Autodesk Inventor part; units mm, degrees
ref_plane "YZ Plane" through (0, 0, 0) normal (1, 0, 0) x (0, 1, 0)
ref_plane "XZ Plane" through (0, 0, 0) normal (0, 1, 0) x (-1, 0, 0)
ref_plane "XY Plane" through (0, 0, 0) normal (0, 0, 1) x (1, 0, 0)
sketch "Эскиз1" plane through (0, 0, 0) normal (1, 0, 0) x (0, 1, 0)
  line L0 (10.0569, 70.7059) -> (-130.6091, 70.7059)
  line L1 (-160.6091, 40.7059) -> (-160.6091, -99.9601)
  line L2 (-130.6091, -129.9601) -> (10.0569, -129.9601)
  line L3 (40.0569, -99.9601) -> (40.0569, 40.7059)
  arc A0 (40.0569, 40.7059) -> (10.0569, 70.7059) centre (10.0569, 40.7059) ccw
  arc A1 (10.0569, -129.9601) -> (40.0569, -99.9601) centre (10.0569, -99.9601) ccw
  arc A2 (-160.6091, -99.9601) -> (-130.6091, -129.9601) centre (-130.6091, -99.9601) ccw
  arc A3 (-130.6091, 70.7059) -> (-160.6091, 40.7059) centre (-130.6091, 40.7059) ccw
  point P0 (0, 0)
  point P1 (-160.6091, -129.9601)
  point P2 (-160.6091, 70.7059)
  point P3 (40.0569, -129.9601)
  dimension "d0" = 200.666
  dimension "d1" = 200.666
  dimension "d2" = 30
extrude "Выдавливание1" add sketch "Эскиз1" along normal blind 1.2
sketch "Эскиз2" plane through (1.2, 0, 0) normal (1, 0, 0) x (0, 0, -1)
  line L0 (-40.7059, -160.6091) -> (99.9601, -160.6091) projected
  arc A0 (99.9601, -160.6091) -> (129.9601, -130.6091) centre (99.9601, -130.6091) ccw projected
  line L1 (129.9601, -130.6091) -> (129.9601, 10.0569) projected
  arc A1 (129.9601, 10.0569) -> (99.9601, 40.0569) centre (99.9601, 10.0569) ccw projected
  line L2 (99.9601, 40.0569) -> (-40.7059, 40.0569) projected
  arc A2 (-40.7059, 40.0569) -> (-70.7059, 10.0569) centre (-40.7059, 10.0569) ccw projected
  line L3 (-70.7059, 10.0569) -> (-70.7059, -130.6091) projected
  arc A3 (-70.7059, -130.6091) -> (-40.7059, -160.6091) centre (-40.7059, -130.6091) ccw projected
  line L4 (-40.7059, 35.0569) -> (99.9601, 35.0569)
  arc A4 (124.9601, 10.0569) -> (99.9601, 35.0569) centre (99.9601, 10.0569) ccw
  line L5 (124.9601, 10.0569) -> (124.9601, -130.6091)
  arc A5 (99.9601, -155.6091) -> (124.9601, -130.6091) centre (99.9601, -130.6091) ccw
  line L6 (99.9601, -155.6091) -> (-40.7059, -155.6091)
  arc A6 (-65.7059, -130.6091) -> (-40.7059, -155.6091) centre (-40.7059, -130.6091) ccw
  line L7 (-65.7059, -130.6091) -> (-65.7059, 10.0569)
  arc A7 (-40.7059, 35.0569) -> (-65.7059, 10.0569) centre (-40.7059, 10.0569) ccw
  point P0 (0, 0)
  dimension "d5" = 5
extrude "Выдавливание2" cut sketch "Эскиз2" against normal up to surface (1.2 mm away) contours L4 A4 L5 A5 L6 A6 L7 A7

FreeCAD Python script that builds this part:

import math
import FreeCAD as App
import Part
import Sketcher

V = App.Vector

doc = App.newDocument("Part")
body = doc.addObject("PartDesign::Body", "Body")

sketch1 = body.newObject("Sketcher::SketchObject", "Sketch")
sketch1.AttachmentSupport = (doc.getObject("YZ_Plane"), [""])
sketch1.MapMode = "FlatFace"
sketch1.addGeometry(Part.ArcOfCircle(Part.Circle(V(10, 41, 0), V(0, 0, 1), 30), math.radians(0), math.radians(90)), False)
sketch1.addGeometry(Part.LineSegment(V(10, 71, 0), V(-131, 71, 0)), False)
sketch1.addGeometry(Part.ArcOfCircle(Part.Circle(V(-131, 41, 0), V(0, 0, 1), 30), math.radians(90), math.radians(180)), False)
sketch1.addGeometry(Part.LineSegment(V(-161, 41, 0), V(-161, -100, 0)), False)
sketch1.addGeometry(Part.ArcOfCircle(Part.Circle(V(-131, -100, 0), V(0, 0, 1), 30), math.radians(180), math.radians(270)), False)
sketch1.addGeometry(Part.LineSegment(V(-131, -130, 0), V(10, -130, 0)), False)
sketch1.addGeometry(Part.ArcOfCircle(Part.Circle(V(10, -100, 0), V(0, 0, 1), 30), math.radians(-90), math.radians(0)), False)
sketch1.addGeometry(Part.LineSegment(V(40, -100, 0), V(40, 41, 0)), False)
sketch1.addConstraint(Sketcher.Constraint("Tangent", 0, 2, 1, 1))
sketch1.addConstraint(Sketcher.Constraint("Tangent", 1, 2, 2, 1))
sketch1.addConstraint(Sketcher.Constraint("Tangent", 2, 2, 3, 1))
sketch1.addConstraint(Sketcher.Constraint("Tangent", 3, 2, 4, 1))
sketch1.addConstraint(Sketcher.Constraint("Tangent", 4, 2, 5, 1))
sketch1.addConstraint(Sketcher.Constraint("Tangent", 5, 2, 6, 1))
sketch1.addConstraint(Sketcher.Constraint("Tangent", 6, 2, 7, 1))
sketch1.addConstraint(Sketcher.Constraint("Tangent", 7, 2, 0, 1))
sketch1.addConstraint(Sketcher.Constraint("Horizontal", 1))
sketch1.addConstraint(Sketcher.Constraint("Vertical", 3))
sketch1.addConstraint(Sketcher.Constraint("Horizontal", 5))
sketch1.addConstraint(Sketcher.Constraint("Vertical", 7))
sketch1.addConstraint(Sketcher.Constraint("Equal", 0, 2))
sketch1.addConstraint(Sketcher.Constraint("Equal", 2, 4))
sketch1.addConstraint(Sketcher.Constraint("Equal", 4, 6))
sketch1.addConstraint(Sketcher.Constraint("Equal", 5, 3))
sketch1.addConstraint(Sketcher.Constraint("Radius", 0, 30.0))
sketch1.addConstraint(Sketcher.Constraint("DistanceX", 1, 2, 1, 1, 140.666))
sketch1.addConstraint(Sketcher.Constraint("DistanceY", 4, 3, -1, 1, 99.96))
sketch1.addConstraint(Sketcher.Constraint("DistanceX", -1, 1, 0, 3, 10.057))
pad1 = body.newObject("PartDesign::Pad", "Pad")
pad1.Profile = sketch1
pad1.Length = 1.2

sketch2 = body.newObject("Sketcher::SketchObject", "Sketch001")
sketch2.AttachmentSupport = (doc.getObject("YZ_Plane"), [""])
sketch2.MapMode = "FlatFace"
sketch2.AttachmentOffset = App.Placement(V(0, 0, 1.2), App.Rotation())
sketch2.addGeometry(Part.LineSegment(V(35, -100, 0), V(35, 41, 0)), False)
sketch2.addGeometry(Part.ArcOfCircle(Part.Circle(V(10, 41, 0), V(0, 0, 1), 25), math.radians(0), math.radians(90)), False)
sketch2.addGeometry(Part.LineSegment(V(10, 66, 0), V(-131, 66, 0)), False)
sketch2.addGeometry(Part.ArcOfCircle(Part.Circle(V(-131, 41, 0), V(0, 0, 1), 25), math.radians(90), math.radians(180)), False)
sketch2.addGeometry(Part.LineSegment(V(-156, 41, 0), V(-156, -100, 0)), False)
sketch2.addGeometry(Part.ArcOfCircle(Part.Circle(V(-131, -100, 0), V(0, 0, 1), 25), math.radians(180), math.radians(270)), False)
sketch2.addGeometry(Part.LineSegment(V(-131, -125, 0), V(10, -125, 0)), False)
sketch2.addGeometry(Part.ArcOfCircle(Part.Circle(V(10, -100, 0), V(0, 0, 1), 25), math.radians(-90), math.radians(0)), False)
sketch2.addConstraint(Sketcher.Constraint("Tangent", 0, 2, 1, 1))
sketch2.addConstraint(Sketcher.Constraint("Tangent", 1, 2, 2, 1))
sketch2.addConstraint(Sketcher.Constraint("Tangent", 2, 2, 3, 1))
sketch2.addConstraint(Sketcher.Constraint("Tangent", 3, 2, 4, 1))
sketch2.addConstraint(Sketcher.Constraint("Tangent", 4, 2, 5, 1))
sketch2.addConstraint(Sketcher.Constraint("Tangent", 5, 2, 6, 1))
sketch2.addConstraint(Sketcher.Constraint("Tangent", 6, 2, 7, 1))
sketch2.addConstraint(Sketcher.Constraint("Tangent", 7, 2, 0, 1))
sketch2.addConstraint(Sketcher.Constraint("Vertical", 0))
sketch2.addConstraint(Sketcher.Constraint("Horizontal", 2))
sketch2.addConstraint(Sketcher.Constraint("Vertical", 4))
sketch2.addConstraint(Sketcher.Constraint("Horizontal", 6))
sketch2.addConstraint(Sketcher.Constraint("Equal", 1, 3))
sketch2.addConstraint(Sketcher.Constraint("Equal", 3, 5))
sketch2.addConstraint(Sketcher.Constraint("Equal", 5, 7))
sketch2.addConstraint(Sketcher.Constraint("Equal", 6, 0))
sketch2.addConstraint(Sketcher.Constraint("Radius", 1, 25.0))
sketch2.addConstraint(Sketcher.Constraint("DistanceX", 2, 2, 2, 1, 140.666))
sketch2.addConstraint(Sketcher.Constraint("DistanceY", 5, 3, -1, 1, 99.96))
sketch2.addConstraint(Sketcher.Constraint("DistanceX", -1, 1, 1, 3, 10.057))
pocket1 = body.newObject("PartDesign::Pocket", "Pocket")
pocket1.Profile = sketch2
pocket1.Length = 1.2

doc.recompute()
